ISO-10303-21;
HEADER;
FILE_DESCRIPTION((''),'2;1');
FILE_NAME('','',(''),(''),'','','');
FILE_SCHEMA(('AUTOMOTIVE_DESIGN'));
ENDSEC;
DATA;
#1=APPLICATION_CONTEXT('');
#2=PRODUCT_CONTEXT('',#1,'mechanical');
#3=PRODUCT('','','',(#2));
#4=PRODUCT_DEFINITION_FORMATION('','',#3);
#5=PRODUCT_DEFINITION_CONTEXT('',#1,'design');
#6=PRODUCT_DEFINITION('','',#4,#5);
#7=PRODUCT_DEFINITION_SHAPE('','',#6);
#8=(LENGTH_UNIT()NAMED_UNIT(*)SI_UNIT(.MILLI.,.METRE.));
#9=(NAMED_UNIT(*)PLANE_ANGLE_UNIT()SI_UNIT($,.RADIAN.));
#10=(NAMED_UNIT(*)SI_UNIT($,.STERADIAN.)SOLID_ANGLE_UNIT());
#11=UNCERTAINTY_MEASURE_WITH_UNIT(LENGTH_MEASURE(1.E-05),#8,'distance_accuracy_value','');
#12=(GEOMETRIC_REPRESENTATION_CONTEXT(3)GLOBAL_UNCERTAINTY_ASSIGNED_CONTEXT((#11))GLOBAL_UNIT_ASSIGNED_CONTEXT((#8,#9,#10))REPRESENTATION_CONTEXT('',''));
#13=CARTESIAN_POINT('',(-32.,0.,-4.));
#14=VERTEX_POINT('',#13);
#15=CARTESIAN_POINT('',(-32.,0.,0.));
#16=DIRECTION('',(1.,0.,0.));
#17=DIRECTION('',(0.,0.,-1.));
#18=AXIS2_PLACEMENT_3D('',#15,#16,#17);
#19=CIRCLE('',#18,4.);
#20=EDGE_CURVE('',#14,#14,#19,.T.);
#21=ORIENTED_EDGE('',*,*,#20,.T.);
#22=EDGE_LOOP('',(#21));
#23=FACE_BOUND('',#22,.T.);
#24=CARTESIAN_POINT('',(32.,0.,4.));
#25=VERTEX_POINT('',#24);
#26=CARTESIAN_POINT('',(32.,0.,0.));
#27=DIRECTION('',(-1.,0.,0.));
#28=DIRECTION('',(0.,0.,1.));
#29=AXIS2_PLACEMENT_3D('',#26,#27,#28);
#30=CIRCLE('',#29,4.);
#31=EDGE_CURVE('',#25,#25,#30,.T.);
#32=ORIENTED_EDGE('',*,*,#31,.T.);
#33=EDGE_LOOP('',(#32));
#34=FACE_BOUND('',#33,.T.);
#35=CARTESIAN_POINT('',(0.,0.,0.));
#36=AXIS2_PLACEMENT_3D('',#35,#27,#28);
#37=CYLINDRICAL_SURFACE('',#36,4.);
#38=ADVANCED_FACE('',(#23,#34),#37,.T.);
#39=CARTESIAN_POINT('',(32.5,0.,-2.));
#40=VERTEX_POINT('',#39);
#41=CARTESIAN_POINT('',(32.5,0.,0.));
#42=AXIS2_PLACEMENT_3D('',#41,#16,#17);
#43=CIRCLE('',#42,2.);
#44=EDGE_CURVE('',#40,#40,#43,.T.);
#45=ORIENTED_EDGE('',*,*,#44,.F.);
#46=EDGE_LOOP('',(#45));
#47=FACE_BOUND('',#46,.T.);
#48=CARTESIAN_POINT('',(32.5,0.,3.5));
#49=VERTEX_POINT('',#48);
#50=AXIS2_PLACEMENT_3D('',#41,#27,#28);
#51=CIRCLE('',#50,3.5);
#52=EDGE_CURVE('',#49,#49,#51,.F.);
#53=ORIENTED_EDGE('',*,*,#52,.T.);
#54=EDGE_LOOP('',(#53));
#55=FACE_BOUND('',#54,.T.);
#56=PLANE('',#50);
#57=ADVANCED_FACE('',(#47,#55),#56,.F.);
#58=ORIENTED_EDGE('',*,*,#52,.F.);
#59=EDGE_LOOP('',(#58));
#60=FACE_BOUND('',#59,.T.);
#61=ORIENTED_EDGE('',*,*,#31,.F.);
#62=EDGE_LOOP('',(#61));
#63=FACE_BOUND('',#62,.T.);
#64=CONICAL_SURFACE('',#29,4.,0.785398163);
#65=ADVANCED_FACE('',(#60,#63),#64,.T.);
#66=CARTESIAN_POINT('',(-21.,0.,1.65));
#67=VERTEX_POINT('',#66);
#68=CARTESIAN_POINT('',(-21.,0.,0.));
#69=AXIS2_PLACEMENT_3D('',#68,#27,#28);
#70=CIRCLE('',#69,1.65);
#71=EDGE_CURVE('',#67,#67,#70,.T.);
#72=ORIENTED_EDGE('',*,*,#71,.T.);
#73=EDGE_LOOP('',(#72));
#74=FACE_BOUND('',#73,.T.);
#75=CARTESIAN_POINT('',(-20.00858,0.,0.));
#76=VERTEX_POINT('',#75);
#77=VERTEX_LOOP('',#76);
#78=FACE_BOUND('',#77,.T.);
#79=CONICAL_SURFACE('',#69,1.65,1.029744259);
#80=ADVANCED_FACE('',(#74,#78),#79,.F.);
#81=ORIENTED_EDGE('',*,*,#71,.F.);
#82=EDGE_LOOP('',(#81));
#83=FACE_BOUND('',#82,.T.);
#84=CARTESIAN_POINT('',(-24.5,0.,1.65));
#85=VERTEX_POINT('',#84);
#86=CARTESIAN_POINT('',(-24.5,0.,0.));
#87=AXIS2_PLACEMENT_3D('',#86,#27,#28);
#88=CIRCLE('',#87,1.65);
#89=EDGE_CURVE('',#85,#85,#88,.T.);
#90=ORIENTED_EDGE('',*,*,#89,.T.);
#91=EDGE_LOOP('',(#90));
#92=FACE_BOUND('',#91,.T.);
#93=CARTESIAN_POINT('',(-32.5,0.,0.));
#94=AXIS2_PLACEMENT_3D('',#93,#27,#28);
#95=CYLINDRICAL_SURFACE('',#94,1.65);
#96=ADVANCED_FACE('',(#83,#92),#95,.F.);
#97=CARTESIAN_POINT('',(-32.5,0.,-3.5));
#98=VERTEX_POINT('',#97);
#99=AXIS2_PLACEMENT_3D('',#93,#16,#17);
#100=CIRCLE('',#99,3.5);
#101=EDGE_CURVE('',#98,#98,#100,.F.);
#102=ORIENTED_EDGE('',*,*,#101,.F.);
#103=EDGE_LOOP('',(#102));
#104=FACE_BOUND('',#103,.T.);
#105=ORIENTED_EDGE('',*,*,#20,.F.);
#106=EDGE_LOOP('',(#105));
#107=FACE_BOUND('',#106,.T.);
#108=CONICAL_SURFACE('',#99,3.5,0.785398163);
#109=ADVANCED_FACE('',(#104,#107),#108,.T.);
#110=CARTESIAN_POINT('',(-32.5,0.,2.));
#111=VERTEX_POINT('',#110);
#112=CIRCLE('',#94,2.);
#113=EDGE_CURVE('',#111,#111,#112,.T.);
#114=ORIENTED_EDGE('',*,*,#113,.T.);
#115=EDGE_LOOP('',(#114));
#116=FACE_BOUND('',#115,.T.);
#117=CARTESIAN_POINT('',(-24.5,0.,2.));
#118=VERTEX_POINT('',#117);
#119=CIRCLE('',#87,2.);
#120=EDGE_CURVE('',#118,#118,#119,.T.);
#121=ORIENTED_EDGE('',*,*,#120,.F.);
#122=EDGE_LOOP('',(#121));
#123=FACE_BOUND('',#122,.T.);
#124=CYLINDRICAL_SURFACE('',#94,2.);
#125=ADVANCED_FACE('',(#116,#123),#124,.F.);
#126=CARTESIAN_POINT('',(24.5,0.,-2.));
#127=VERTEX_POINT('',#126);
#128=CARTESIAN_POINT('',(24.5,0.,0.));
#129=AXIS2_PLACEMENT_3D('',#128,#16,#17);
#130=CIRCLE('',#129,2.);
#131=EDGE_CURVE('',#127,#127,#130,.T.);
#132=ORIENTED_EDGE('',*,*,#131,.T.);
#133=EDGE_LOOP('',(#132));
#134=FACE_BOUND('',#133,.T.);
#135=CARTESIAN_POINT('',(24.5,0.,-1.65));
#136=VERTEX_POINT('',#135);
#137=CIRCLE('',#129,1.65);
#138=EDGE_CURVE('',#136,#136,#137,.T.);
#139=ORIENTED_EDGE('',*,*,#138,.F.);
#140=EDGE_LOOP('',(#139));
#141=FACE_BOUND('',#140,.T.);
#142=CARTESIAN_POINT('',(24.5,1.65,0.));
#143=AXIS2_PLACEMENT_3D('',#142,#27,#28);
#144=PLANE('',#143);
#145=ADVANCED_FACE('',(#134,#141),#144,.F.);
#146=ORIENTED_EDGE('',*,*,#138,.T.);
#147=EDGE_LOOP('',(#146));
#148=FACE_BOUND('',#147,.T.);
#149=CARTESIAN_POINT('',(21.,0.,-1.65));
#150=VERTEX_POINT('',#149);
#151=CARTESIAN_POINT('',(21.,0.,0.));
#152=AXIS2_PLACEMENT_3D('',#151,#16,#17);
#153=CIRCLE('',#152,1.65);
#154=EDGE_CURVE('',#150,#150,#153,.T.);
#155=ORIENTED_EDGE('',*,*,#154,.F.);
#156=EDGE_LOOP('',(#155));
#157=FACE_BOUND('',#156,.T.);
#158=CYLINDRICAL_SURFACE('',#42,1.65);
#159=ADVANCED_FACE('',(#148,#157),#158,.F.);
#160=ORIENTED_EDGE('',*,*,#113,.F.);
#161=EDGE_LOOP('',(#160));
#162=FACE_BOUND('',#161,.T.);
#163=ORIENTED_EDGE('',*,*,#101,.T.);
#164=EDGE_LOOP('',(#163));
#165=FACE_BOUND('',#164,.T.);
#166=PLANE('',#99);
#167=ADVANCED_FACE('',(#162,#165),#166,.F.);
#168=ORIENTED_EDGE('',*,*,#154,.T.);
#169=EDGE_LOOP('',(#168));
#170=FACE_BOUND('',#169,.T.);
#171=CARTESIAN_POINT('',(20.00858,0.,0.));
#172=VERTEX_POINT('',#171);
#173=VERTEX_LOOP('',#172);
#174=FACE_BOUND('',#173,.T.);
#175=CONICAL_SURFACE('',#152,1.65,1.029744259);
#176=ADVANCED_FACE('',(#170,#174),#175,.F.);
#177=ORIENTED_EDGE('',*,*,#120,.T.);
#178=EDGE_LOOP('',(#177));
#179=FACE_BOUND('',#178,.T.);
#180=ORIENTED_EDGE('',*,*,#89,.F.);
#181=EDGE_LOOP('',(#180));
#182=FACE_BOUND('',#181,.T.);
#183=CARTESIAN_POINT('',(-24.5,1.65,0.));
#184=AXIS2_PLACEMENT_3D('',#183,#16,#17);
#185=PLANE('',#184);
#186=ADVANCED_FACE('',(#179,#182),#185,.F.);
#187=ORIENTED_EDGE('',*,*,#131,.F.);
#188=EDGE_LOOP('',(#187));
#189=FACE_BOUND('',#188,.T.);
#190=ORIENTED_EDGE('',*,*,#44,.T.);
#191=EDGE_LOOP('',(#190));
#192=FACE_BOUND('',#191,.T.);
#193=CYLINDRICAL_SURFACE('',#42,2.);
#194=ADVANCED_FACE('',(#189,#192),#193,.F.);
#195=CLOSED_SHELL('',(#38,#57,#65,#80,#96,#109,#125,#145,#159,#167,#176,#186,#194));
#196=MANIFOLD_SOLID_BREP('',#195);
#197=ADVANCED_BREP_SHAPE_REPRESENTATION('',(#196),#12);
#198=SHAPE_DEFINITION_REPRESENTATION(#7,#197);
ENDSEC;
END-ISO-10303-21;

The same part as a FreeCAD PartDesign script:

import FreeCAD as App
import Part
import Sketcher
from FreeCAD import Vector


def edges_at(feature, points):
    """Names of the edges that pass closest to the given points."""
    edges = feature.Shape.Edges
    near = lambda p: min(range(len(edges)), key=lambda i: edges[i].distToShape(Part.Vertex(*p))[0])
    return sorted({f"Edge{near(p) + 1}" for p in points})

doc = App.newDocument("Part")
params = doc.addObject("Spreadsheet::Sheet", "Params")
for row, (alias, value) in enumerate([
    ("sketch1_width", "65 mm"),
    ("sketch1_height", "4 mm"),
    ("revolution_angle", "360 deg"),
    ("sketch2_diameter", "3.3 mm"),
    ("hole_diameter", "3.3 mm"),
    ("hole_depth", "11.5 mm"),
    ("hole_cbore_diameter", "4 mm"),
    ("hole_cbore_depth", "8 mm"),
    ("sketch3_diameter", "3.3 mm"),
    ("hole2_diameter", "3.3 mm"),
    ("hole2_depth", "11.5 mm"),
    ("hole2_cbore_diameter", "4 mm"),
    ("hole2_cbore_depth", "8 mm"),
    ("chamfer_size", "0.5 mm"),
], start=1):
    params.set(f"A{row}", alias)
    params.set(f"B{row}", "=" + value)
    params.setAlias(f"B{row}", alias)

body = doc.addObject("PartDesign::Body", "Body")

sketch1 = body.newObject("Sketcher::SketchObject", "Sketch")
sketch1.AttachmentSupport = (doc.getObject("XY_Plane"), [""])
sketch1.MapMode = "FlatFace"
sketch1.addGeometry([
    Part.LineSegment(Vector(-32.5, 4, 0), Vector(-32.5, 0, 0)),
    Part.LineSegment(Vector(-32.5, 0, 0), Vector(32.5, 0, 0)),
    Part.LineSegment(Vector(32.5, 0, 0), Vector(32.5, 4, 0)),
    Part.LineSegment(Vector(32.5, 4, 0), Vector(-32.5, 4, 0)),
], False)
sketch1.addConstraint([
    Sketcher.Constraint("Coincident", 0, 2, 1, 1),
    Sketcher.Constraint("Coincident", 1, 2, 2, 1),
    Sketcher.Constraint("Coincident", 2, 2, 3, 1),
    Sketcher.Constraint("Coincident", 3, 2, 0, 1),
    Sketcher.Constraint("Vertical", 0),
    Sketcher.Constraint("Horizontal", 1),
    Sketcher.Constraint("Vertical", 2),
    Sketcher.Constraint("Horizontal", 3),
    Sketcher.Constraint("Symmetric", 0, 2, 1, 2, -1, 1),
    Sketcher.Constraint("DistanceX", 1, 1, 1, 2, 65.0),
    Sketcher.Constraint("DistanceY", 0, 2, 0, 1, 4.0),
])
sketch1.setExpression("Constraints[9]", "Params.sketch1_width")
sketch1.setExpression("Constraints[10]", "Params.sketch1_height")
revolution = body.newObject("PartDesign::Revolution", "Revolution")
revolution.Profile = sketch1
revolution.ReferenceAxis = (sketch1, ["H_Axis"])
revolution.setExpression("Angle", "Params.revolution_angle")

sketch2 = body.newObject("Sketcher::SketchObject", "Sketch001")
sketch2.AttachmentSupport = (doc.getObject("YZ_Plane"), [""])
sketch2.MapMode = "FlatFace"
sketch2.AttachmentOffset = App.Placement(Vector(0, 0, 32.5), App.Rotation())
sketch2.addGeometry(Part.Circle(Vector(0, 0, 0), Vector(0, 0, 1), 1.6), False)
sketch2.addConstraint([
    Sketcher.Constraint("Coincident", 0, 3, -1, 1),
    Sketcher.Constraint("Diameter", 0, 3.3),
])
sketch2.setExpression("Constraints[1]", "Params.sketch2_diameter")
doc.recompute()
hole = body.newObject("PartDesign::Hole", "Hole")
hole.Profile = sketch2
hole.ThreadType = "None"
hole.setExpression("Diameter", "Params.hole_diameter")
hole.DepthType = "Dimension"
hole.setExpression("Depth", "Params.hole_depth")
hole.DrillPoint = "Angled"
hole.DrillPointAngle = 118
hole.HoleCutType = "Counterbore"
hole.setExpression("HoleCutDiameter", "Params.hole_cbore_diameter")
hole.setExpression("HoleCutDepth", "Params.hole_cbore_depth")

sketch3 = body.newObject("Sketcher::SketchObject", "Sketch002")
sketch3.AttachmentSupport = (doc.getObject("YZ_Plane"), [""])
sketch3.MapMode = "FlatFace"
sketch3.AttachmentOffset = App.Placement(Vector(0, 0, -32.5), App.Rotation())
sketch3.addGeometry(Part.Circle(Vector(0, 0, 0), Vector(0, 0, 1), 1.6), False)
sketch3.addConstraint([
    Sketcher.Constraint("Coincident", 0, 3, -1, 1),
    Sketcher.Constraint("Diameter", 0, 3.3),
])
sketch3.setExpression("Constraints[1]", "Params.sketch3_diameter")
doc.recompute()
hole2 = body.newObject("PartDesign::Hole", "Hole001")
hole2.Profile = sketch3
hole2.ThreadType = "None"
hole2.setExpression("Diameter", "Params.hole2_diameter")
hole2.DepthType = "Dimension"
hole2.setExpression("Depth", "Params.hole2_depth")
hole2.DrillPoint = "Angled"
hole2.DrillPointAngle = 118
hole2.HoleCutType = "Counterbore"
hole2.setExpression("HoleCutDiameter", "Params.hole2_cbore_diameter")
hole2.setExpression("HoleCutDepth", "Params.hole2_cbore_depth")
hole2.Reversed = True
doc.recompute()

chamfer = body.newObject("PartDesign::Chamfer", "Chamfer")
chamfer.Base = (hole2, edges_at(hole2, [(32.5, 0, -4), (-32.5, 0, -4)]))
chamfer.setExpression("Size", "Params.chamfer_size")

doc.recompute()
